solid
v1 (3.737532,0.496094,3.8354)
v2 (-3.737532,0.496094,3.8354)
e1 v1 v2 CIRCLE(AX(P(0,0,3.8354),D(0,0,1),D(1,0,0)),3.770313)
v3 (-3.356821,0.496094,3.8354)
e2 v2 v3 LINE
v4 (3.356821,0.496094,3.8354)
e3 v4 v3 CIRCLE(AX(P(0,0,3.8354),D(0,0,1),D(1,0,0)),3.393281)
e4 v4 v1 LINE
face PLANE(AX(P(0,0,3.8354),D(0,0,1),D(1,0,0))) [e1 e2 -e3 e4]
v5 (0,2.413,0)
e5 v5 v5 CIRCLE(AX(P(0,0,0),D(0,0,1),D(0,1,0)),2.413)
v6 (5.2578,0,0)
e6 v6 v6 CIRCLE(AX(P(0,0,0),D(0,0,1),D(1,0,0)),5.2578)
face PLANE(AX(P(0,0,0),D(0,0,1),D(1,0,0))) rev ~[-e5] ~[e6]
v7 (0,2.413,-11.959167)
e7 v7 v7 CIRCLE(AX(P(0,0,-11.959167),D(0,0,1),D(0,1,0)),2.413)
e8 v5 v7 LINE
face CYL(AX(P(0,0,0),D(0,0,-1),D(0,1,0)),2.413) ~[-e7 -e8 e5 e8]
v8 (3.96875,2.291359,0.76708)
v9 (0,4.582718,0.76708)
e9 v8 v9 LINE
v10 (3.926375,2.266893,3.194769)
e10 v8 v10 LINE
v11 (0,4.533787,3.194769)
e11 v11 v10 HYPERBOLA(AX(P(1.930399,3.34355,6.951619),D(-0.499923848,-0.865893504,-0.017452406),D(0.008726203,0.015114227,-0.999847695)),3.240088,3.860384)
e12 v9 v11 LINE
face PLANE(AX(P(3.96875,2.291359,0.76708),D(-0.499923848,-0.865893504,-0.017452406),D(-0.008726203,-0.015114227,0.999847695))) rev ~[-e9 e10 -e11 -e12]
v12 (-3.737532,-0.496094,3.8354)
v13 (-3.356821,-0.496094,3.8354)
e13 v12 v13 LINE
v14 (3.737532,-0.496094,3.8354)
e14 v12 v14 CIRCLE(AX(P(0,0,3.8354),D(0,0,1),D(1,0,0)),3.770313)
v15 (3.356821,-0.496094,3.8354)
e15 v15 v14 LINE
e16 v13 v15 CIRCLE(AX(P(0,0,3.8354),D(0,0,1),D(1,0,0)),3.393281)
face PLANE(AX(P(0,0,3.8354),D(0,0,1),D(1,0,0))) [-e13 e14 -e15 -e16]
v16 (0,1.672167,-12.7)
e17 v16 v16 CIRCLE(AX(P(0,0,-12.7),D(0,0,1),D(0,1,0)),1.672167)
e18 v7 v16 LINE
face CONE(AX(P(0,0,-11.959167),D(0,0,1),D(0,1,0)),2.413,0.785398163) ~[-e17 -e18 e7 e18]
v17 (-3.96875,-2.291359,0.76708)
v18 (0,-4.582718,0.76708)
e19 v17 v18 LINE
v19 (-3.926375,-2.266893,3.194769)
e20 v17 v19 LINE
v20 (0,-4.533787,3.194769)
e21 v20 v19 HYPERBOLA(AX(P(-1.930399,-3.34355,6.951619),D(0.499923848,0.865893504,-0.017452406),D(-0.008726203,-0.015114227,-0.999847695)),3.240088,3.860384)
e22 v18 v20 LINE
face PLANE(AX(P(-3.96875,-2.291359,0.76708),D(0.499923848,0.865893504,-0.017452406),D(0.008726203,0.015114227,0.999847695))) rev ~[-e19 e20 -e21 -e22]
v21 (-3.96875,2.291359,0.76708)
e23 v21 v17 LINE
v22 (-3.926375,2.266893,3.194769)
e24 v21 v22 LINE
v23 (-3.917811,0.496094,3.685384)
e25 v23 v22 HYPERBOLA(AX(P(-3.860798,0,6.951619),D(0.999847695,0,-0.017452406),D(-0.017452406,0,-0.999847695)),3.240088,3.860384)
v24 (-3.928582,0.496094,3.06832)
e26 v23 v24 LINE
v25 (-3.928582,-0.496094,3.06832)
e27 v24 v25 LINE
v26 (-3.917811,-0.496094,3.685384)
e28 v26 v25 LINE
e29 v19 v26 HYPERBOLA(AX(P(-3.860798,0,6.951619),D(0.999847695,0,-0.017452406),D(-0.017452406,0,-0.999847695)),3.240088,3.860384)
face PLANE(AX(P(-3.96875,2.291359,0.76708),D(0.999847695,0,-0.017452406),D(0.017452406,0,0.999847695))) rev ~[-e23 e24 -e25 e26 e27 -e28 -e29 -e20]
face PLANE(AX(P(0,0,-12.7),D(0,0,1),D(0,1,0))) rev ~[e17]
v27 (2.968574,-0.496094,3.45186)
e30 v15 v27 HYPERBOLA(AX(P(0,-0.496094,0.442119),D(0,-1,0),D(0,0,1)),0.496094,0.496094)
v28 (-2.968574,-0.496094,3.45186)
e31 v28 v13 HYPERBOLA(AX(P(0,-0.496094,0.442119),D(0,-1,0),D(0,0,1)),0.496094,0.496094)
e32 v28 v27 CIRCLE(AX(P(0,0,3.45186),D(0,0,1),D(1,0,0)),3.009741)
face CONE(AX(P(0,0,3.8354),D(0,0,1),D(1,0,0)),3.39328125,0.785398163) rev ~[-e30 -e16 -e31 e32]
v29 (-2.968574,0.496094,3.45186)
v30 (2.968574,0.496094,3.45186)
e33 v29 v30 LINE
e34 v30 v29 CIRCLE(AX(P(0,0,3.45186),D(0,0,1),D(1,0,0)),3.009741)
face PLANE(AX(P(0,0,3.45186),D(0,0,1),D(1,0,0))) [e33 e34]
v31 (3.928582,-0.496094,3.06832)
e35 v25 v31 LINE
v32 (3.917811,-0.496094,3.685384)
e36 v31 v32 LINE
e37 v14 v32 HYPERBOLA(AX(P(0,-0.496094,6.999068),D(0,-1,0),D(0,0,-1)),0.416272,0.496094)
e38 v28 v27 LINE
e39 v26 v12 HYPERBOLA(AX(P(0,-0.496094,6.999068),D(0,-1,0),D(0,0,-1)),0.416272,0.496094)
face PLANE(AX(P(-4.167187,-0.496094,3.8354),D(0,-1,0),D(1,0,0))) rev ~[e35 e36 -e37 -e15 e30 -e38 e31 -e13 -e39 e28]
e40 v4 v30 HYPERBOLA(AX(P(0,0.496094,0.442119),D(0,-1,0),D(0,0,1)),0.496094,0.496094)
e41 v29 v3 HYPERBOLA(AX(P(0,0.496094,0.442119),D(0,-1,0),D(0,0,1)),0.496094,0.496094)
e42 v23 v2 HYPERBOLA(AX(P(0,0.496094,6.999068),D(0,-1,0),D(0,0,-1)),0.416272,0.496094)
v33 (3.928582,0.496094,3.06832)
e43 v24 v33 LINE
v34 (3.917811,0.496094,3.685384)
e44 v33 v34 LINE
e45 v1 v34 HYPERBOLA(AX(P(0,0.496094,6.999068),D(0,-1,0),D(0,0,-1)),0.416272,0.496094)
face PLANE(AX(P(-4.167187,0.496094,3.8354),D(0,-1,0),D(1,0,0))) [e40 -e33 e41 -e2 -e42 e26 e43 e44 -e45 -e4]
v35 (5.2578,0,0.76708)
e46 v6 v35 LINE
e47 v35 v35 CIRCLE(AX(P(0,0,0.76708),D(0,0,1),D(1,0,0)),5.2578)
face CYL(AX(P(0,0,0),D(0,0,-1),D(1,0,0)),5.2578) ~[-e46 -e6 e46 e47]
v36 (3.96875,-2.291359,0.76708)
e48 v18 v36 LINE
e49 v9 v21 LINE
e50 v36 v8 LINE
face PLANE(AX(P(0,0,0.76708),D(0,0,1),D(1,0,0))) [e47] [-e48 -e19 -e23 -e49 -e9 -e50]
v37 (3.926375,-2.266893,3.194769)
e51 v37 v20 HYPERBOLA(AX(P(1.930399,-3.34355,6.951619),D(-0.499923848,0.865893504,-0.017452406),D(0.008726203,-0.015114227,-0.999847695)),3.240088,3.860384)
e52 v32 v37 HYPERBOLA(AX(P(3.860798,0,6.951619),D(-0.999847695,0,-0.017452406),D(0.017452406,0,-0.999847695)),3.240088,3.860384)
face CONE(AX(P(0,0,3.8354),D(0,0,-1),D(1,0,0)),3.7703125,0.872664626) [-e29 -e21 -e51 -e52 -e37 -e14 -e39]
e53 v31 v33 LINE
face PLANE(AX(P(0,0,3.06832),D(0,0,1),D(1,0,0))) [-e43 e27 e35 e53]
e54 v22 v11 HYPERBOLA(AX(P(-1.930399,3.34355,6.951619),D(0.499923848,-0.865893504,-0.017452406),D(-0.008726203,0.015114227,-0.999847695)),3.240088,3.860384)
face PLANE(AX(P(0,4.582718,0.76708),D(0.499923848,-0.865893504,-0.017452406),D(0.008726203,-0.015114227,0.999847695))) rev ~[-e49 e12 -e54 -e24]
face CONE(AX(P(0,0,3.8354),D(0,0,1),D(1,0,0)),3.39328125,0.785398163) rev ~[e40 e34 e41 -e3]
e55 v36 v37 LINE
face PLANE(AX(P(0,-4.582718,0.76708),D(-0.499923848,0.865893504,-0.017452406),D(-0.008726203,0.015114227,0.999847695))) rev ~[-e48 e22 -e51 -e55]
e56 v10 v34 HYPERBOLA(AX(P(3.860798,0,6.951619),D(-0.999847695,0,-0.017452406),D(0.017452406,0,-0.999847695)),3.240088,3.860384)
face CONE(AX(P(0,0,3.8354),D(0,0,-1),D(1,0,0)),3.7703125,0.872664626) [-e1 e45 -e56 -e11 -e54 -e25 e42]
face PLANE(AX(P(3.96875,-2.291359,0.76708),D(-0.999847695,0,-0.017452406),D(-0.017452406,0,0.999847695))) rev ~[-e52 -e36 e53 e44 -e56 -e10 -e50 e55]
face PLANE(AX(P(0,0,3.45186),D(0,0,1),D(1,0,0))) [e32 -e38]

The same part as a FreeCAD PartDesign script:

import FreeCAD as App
import Part
import Sketcher
from FreeCAD import Vector
Q = App.Units.Quantity


def faces_at(feature, points):
    """Names of the faces that lie closest to the given points."""
    faces = feature.Shape.Faces
    near = lambda p: min(range(len(faces)), key=lambda i: faces[i].distToShape(Part.Vertex(*p))[0])
    return sorted({f"Face{near(p) + 1}" for p in points})

doc = App.newDocument("Part")
body = doc.addObject("PartDesign::Body", "Body")

# Sketch on YZ plane
sketch1 = body.newObject("Sketcher::SketchObject", "Sketch")
sketch1.AttachmentSupport = (doc.getObject("YZ_Plane"), [""])
sketch1.MapMode = "FlatFace"
sketch1.addGeometry([
    Part.LineSegment(Vector(2.4, 0, 0), Vector(0, 0, 0)),  # 0
    Part.LineSegment(Vector(0, 0, 0), Vector(0, -12.7, 0)),  # 1
    Part.LineSegment(Vector(0, -12.7, 0), Vector(1.7, -12.7, 0)),  # 2
    Part.LineSegment(Vector(1.7, -12.7, 0), Vector(2.4, -12, 0)),  # 3
    Part.LineSegment(Vector(2.4, -12, 0), Vector(2.4, 0, 0)),  # 4
], False)
sketch1.addConstraint([
    Sketcher.Constraint("Coincident", 0, 2, 1, 1),
    Sketcher.Constraint("Coincident", 1, 2, 2, 1),
    Sketcher.Constraint("Coincident", 2, 2, 3, 1),
    Sketcher.Constraint("Coincident", 3, 2, 4, 1),
    Sketcher.Constraint("Coincident", 4, 2, 0, 1),
    Sketcher.Constraint("Horizontal", 0),
    Sketcher.Constraint("Vertical", 1),
    Sketcher.Constraint("Horizontal", 2),
    Sketcher.Constraint("Vertical", 4),
    Sketcher.Constraint("Coincident", 0, 2, -1, 1),
    Sketcher.Constraint("DistanceY", 1, 2, 1, 1, Q("0.5 in")),
    Sketcher.Constraint("Angle", 3, Q("45 deg")),
    Sketcher.Constraint("DistanceX", 0, 2, 0, 1, Q("0.095 in")),
    Sketcher.Constraint("DistanceX", 2, 1, 2, 2, Q("1.672167 mm")),
])
revolution = body.newObject("PartDesign::Revolution", "Revolution")
revolution.Profile = sketch1
revolution.ReferenceAxis = (sketch1, ["V_Axis"])
revolution.Angle = 360

# Sketch on XY plane
sketch2 = body.newObject("Sketcher::SketchObject", "Sketch001")
sketch2.AttachmentSupport = (doc.getObject("XY_Plane"), [""])
sketch2.MapMode = "FlatFace"
sketch2.addGeometry(Part.Circle(Vector(0, 0, 0), Vector(0, 0, 1), 5), False)
sketch2.addConstraint([
    Sketcher.Constraint("Coincident", 0, 3, -1, 1),
    Sketcher.Constraint("Diameter", 0, Q("0.414 in")),
])
pad1 = body.newObject("PartDesign::Pad", "Pad")
pad1.Profile = sketch2
pad1.Length = Q("0.0302 in")

# Sketch on XY plane
sketch3 = body.newObject("Sketcher::SketchObject", "Sketch002")
sketch3.AttachmentSupport = (doc.getObject("XY_Plane"), [""])
sketch3.MapMode = "FlatFace"
sketch3.AttachmentOffset = App.Placement(Vector(0, 0, 0.0302 * 25.4), App.Rotation())
sketch3.addGeometry([
    Part.LineSegment(Vector(-4, 2.3, 0), Vector(-4, -2.3, 0)),  # 0
    Part.LineSegment(Vector(-4, -2.3, 0), Vector(0, -4.6, 0)),  # 1
    Part.LineSegment(Vector(0, -4.6, 0), Vector(4, -2.3, 0)),  # 2
    Part.LineSegment(Vector(4, -2.3, 0), Vector(4, 2.3, 0)),  # 3
    Part.LineSegment(Vector(4, 2.3, 0), Vector(0, 4.6, 0)),  # 4
    Part.LineSegment(Vector(0, 4.6, 0), Vector(-4, 2.3, 0)),  # 5
], False)
sketch3.addConstraint([
    Sketcher.Constraint("Coincident", 0, 2, 1, 1),
    Sketcher.Constraint("Coincident", 1, 2, 2, 1),
    Sketcher.Constraint("Coincident", 2, 2, 3, 1),
    Sketcher.Constraint("Coincident", 3, 2, 4, 1),
    Sketcher.Constraint("Coincident", 4, 2, 5, 1),
    Sketcher.Constraint("Coincident", 5, 2, 0, 1),
    Sketcher.Constraint("Vertical", 0),
    Sketcher.Constraint("Vertical", 3),
    Sketcher.Constraint("Symmetric", 0, 2, 3, 2, -1, 1),
    Sketcher.Constraint("Symmetric", 1, 2, 4, 2, -1, 1),
    Sketcher.Constraint("PointOnObject", 1, 2, -2),
    Sketcher.Constraint("Parallel", 2, 5),
    Sketcher.Constraint("Horizontal", 0, 2, 2, 2),
    Sketcher.Constraint("Angle", 1, Q("-30 deg")),
    Sketcher.Constraint("DistanceX", 0, 2, -1, 1, Q("0.15625 in")),
    Sketcher.Constraint("DistanceY", 0, 2, 0, 1, Q("4.582718 mm")),
])
pad2 = body.newObject("PartDesign::Pad", "Pad001")
pad2.Profile = sketch3
pad2.Length = Q("0.1208 in")
pad2.TaperAngle = -1
body2 = doc.addObject("PartDesign::Body", "Body001")

# Sketch on XY plane
sketch4 = body2.newObject("Sketcher::SketchObject", "Sketch003")
sketch4.AttachmentSupport = (doc.getObject("XY_Plane001"), [""])
sketch4.MapMode = "FlatFace"
sketch4.AttachmentOffset = App.Placement(Vector(0, 0, 0.151 * 25.4), App.Rotation())
sketch4.addGeometry([
    Part.LineSegment(Vector(-31.3, 31.3, 0), Vector(-31.3, -31.3, 0)),  # 0
    Part.LineSegment(Vector(-31.3, -31.3, 0), Vector(31.3, -31.3, 0)),  # 1
    Part.LineSegment(Vector(31.3, -31.3, 0), Vector(31.3, 31.3, 0)),  # 2
    Part.LineSegment(Vector(31.3, 31.3, 0), Vector(-31.3, 31.3, 0)),  # 3
    Part.Circle(Vector(0, 0, 0), Vector(0, 0, 1), 3.8),  # 4
], False)
sketch4.addConstraint([
    Sketcher.Constraint("Coincident", 0, 2, 1, 1),
    Sketcher.Constraint("Coincident", 1, 2, 2, 1),
    Sketcher.Constraint("Coincident", 2, 2, 3, 1),
    Sketcher.Constraint("Coincident", 3, 2, 0, 1),
    Sketcher.Constraint("Vertical", 0),
    Sketcher.Constraint("Horizontal", 1),
    Sketcher.Constraint("Vertical", 2),
    Sketcher.Constraint("Horizontal", 3),
    Sketcher.Constraint("Coincident", 4, 3, -1, 1),
    Sketcher.Constraint("Symmetric", 0, 2, 2, 2, -1, 1),
    Sketcher.Constraint("Equal", 3, 0),
    Sketcher.Constraint("Diameter", 4, Q("0.296875 in")),
    Sketcher.Constraint("DistanceX", 1, 1, 1, 2, Q("62.562 mm")),
])
pad3 = body2.newObject("PartDesign::Pad", "Pad002")
pad3.Profile = sketch4
pad3.Length = 19.130316
pad3.Reversed = True
doc.recompute()

datumplane = body2.newObject("PartDesign::Plane", "DatumPlane")
datumplane.AttachmentSupport = (doc.getObject("XY_Plane001"), [""])
datumplane.MapMode = "FlatFace"
datumplane.AttachmentOffset = App.Placement(Vector(0, 0, 0.151 * 25.4), App.Rotation())
draft = body2.newObject("PartDesign::Draft", "Draft")
draft.Base = (pad3, faces_at(pad3, [
    (0, -31.281, -5.73),
    (31.281, 0, -5.73),
    (0, 31.281, -5.73),
    (-31.281, 0, -5.73),
    (-3.77, 0, -5.73),
]))
draft.NeutralPlane = (datumplane, [""])
draft.Angle = 50
draft.Reversed = True
doc.recompute()

boolean = body.newObject("PartDesign::Boolean", "Boolean")
boolean.Type = "Cut"
boolean.addObjects([body2])
body3 = doc.addObject("PartDesign::Body", "Body002")

# Sketch on XY plane
sketch5 = body3.newObject("Sketcher::SketchObject", "Sketch004")
sketch5.AttachmentSupport = (doc.getObject("XY_Plane002"), [""])
sketch5.MapMode = "FlatFace"
sketch5.AttachmentOffset = App.Placement(Vector(0, 0, 0.151 * 25.4), App.Rotation())
sketch5.addGeometry(Part.Circle(Vector(0, 0, 0), Vector(0, 0, 1), 3.4), False)
sketch5.addConstraint([
    Sketcher.Constraint("Coincident", 0, 3, -1, 1),
    Sketcher.Constraint("Diameter", 0, Q("6.786562 mm")),
])
pad4 = body3.newObject("PartDesign::Pad", "Pad003")
pad4.Profile = sketch5
pad4.Length = Q("0.0151 in")
pad4.Reversed = True
doc.recompute()

datumplane2 = body3.newObject("PartDesign::Plane", "DatumPlane001")
datumplane2.AttachmentSupport = (doc.getObject("XY_Plane002"), [""])
datumplane2.MapMode = "FlatFace"
datumplane2.AttachmentOffset = App.Placement(Vector(0, 0, 0.151 * 25.4), App.Rotation())
draft2 = body3.newObject("PartDesign::Draft", "Draft001")
draft2.Base = (pad4, faces_at(pad4, [(-3.393, 0, 3.644)]))
draft2.NeutralPlane = (datumplane2, [""])
draft2.Angle = 45
draft2.Reversed = True
doc.recompute()

boolean2 = body.newObject("PartDesign::Boolean", "Boolean001")
boolean2.Type = "Cut"
boolean2.addObjects([body3])

# Sketch on XY plane
sketch6 = body.newObject("Sketcher::SketchObject", "Sketch005")
sketch6.AttachmentSupport = (doc.getObject("XY_Plane"), [""])
sketch6.MapMode = "FlatFace"
sketch6.AttachmentOffset = App.Placement(Vector(0, 0, 0.151 * 25.4), App.Rotation())
sketch6.addGeometry([
    Part.LineSegment(Vector(-4.2, 0.5, 0), Vector(-4.2, -0.5, 0)),
    Part.LineSegment(Vector(-4.2, -0.5, 0), Vector(4.2, -0.5, 0)),
    Part.LineSegment(Vector(4.2, -0.5, 0), Vector(4.2, 0.5, 0)),
    Part.LineSegment(Vector(4.2, 0.5, 0), Vector(-4.2, 0.5, 0)),
], False)
sketch6.addConstraint([
    Sketcher.Constraint("Coincident", 0, 2, 1, 1),
    Sketcher.Constraint("Coincident", 1, 2, 2, 1),
    Sketcher.Constraint("Coincident", 2, 2, 3, 1),
    Sketcher.Constraint("Coincident", 3, 2, 0, 1),
    Sketcher.Constraint("Vertical", 0),
    Sketcher.Constraint("Horizontal", 1),
    Sketcher.Constraint("Vertical", 2),
    Sketcher.Constraint("Horizontal", 3),
    Sketcher.Constraint("Symmetric", 0, 2, 2, 2, -1, 1),
    Sketcher.Constraint("DistanceX", 1, 1, 1, 2, Q("0.328125 in")),
    Sketcher.Constraint("DistanceY", 0, 2, 0, 1, Q("0.992188 mm")),
])
pocket1 = body.newObject("PartDesign::Pocket", "Pocket")
pocket1.Profile = sketch6
pocket1.Length = Q("0.0302 in")

doc.recompute()
